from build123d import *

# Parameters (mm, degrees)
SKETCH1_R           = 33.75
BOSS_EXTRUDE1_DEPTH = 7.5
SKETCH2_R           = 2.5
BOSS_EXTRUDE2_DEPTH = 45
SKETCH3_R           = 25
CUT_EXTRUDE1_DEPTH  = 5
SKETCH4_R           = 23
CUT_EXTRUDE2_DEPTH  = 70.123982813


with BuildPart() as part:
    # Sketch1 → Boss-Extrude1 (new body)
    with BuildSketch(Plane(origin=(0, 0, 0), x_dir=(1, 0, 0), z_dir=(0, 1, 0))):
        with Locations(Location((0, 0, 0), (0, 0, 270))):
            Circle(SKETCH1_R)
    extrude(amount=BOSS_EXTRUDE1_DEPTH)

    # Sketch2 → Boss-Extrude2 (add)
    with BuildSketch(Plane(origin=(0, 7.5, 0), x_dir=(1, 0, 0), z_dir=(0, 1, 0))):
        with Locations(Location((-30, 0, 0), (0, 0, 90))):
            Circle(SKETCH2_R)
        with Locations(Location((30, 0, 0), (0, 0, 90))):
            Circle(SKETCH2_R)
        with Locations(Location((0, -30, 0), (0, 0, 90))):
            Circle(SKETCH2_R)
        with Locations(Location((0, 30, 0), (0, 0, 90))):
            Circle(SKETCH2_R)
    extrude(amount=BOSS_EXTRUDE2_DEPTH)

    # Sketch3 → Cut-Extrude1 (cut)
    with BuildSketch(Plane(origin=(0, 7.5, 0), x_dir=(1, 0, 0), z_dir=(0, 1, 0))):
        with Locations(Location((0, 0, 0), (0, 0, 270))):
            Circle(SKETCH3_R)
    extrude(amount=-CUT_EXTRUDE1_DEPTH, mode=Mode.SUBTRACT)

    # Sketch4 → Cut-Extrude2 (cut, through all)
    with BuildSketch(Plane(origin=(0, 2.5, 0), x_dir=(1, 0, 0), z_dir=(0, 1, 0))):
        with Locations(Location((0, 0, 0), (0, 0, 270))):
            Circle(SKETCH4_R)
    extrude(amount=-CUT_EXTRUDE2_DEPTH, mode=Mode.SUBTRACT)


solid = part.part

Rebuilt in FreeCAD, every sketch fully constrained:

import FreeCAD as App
import Part
import Sketcher
from FreeCAD import Vector

doc = App.newDocument("Part")
params = doc.addObject("Spreadsheet::Sheet", "Params")
for row, (alias, value) in enumerate([
    ("sketch1_diameter", "67.5 mm"),
    ("pad1_length", "7.5 mm"),
    ("sketch2_diameter", "5 mm"),
    ("pad2_length", "45 mm"),
    ("sketch3_diameter", "50 mm"),
    ("pocket1_length", "5 mm"),
    ("sketch4_diameter", "46 mm"),
], start=1):
    params.set(f"A{row}", alias)
    params.set(f"B{row}", "=" + value)
    params.setAlias(f"B{row}", alias)

body = doc.addObject("PartDesign::Body", "Body")

# Sketch on XZ plane
sketch1 = doc.addObject("Sketcher::SketchObject", "Sketch")
body.addObject(sketch1)
sketch1.AttachmentSupport = (doc.XZ_Plane, [""])
sketch1.MapMode = "FlatFace"
sketch1.addGeometry(Part.Circle(Vector(0, 0, 0), Vector(0, 0, 1), 33.75), False)
sketch1.addConstraint([
    Sketcher.Constraint("Coincident", 0, 3, -1, 1),
    Sketcher.Constraint("Diameter", 0, 67.5),
])
sketch1.setExpression("Constraints[1]", "Params.sketch1_diameter")
pad1 = doc.addObject("PartDesign::Pad", "Pad")
body.addObject(pad1)
pad1.Profile = sketch1
pad1.setExpression("Length", "Params.pad1_length")
pad1.Reversed = True

# Sketch on XZ plane
sketch2 = doc.addObject("Sketcher::SketchObject", "Sketch001")
body.addObject(sketch2)
sketch2.AttachmentSupport = (doc.XZ_Plane, [""])
sketch2.MapMode = "FlatFace"
sketch2.AttachmentOffset = App.Placement(Vector(0, 0, -7.5), App.Rotation())
sketch2.addGeometry([
    Part.Circle(Vector(-30, 0, 0), Vector(0, 0, 1), 2.5),
    Part.Circle(Vector(30, 0, 0), Vector(0, 0, 1), 2.5),
    Part.Circle(Vector(0, 30, 0), Vector(0, 0, 1), 2.5),
    Part.Circle(Vector(0, -30, 0), Vector(0, 0, 1), 2.5),
], False)
sketch2.addConstraint([
    Sketcher.Constraint("Equal", 0, 1),
    Sketcher.Constraint("Equal", 1, 2),
    Sketcher.Constraint("Equal", 2, 3),
    Sketcher.Constraint("Symmetric", 0, 3, 1, 3, -1, 1),
    Sketcher.Constraint("Symmetric", 2, 3, 3, 3, -1, 1),
    Sketcher.Constraint("PointOnObject", 0, 3, -1),
    Sketcher.Constraint("PointOnObject", 2, 3, -2),
    Sketcher.Constraint("Diameter", 0, 5.0),
    Sketcher.Constraint("DistanceX", 0, 3, -1, 1, 30.0),
    Sketcher.Constraint("DistanceY", -1, 1, 2, 3, 30.0),
])
sketch2.setExpression("Constraints[7]", "Params.sketch2_diameter")
pad2 = doc.addObject("PartDesign::Pad", "Pad001")
body.addObject(pad2)
pad2.Profile = sketch2
pad2.setExpression("Length", "Params.pad2_length")
pad2.Reversed = True

# Sketch on XZ plane
sketch3 = doc.addObject("Sketcher::SketchObject", "Sketch002")
body.addObject(sketch3)
sketch3.AttachmentSupport = (doc.XZ_Plane, [""])
sketch3.MapMode = "FlatFace"
sketch3.AttachmentOffset = App.Placement(Vector(0, 0, -7.5), App.Rotation())
sketch3.addGeometry(Part.Circle(Vector(0, 0, 0), Vector(0, 0, 1), 25), False)
sketch3.addConstraint([
    Sketcher.Constraint("Coincident", 0, 3, -1, 1),
    Sketcher.Constraint("Diameter", 0, 50.0),
])
sketch3.setExpression("Constraints[1]", "Params.sketch3_diameter")
pocket1 = doc.addObject("PartDesign::Pocket", "Pocket")
body.addObject(pocket1)
pocket1.Profile = sketch3
pocket1.setExpression("Length", "Params.pocket1_length")
pocket1.Reversed = True

# Sketch on XZ plane
sketch4 = doc.addObject("Sketcher::SketchObject", "Sketch003")
body.addObject(sketch4)
sketch4.AttachmentSupport = (doc.XZ_Plane, [""])
sketch4.MapMode = "FlatFace"
sketch4.AttachmentOffset = App.Placement(Vector(0, 0, -2.5), App.Rotation())
sketch4.addGeometry(Part.Circle(Vector(0, 0, 0), Vector(0, 0, 1), 23), False)
sketch4.addConstraint([
    Sketcher.Constraint("Coincident", 0, 3, -1, 1),
    Sketcher.Constraint("Diameter", 0, 46.0),
])
sketch4.setExpression("Constraints[1]", "Params.sketch4_diameter")
pocket2 = doc.addObject("PartDesign::Pocket", "Pocket001")
body.addObject(pocket2)
pocket2.Profile = sketch4
pocket2.Type = "ThroughAll"
pocket2.Reversed = True

doc.recompute()
